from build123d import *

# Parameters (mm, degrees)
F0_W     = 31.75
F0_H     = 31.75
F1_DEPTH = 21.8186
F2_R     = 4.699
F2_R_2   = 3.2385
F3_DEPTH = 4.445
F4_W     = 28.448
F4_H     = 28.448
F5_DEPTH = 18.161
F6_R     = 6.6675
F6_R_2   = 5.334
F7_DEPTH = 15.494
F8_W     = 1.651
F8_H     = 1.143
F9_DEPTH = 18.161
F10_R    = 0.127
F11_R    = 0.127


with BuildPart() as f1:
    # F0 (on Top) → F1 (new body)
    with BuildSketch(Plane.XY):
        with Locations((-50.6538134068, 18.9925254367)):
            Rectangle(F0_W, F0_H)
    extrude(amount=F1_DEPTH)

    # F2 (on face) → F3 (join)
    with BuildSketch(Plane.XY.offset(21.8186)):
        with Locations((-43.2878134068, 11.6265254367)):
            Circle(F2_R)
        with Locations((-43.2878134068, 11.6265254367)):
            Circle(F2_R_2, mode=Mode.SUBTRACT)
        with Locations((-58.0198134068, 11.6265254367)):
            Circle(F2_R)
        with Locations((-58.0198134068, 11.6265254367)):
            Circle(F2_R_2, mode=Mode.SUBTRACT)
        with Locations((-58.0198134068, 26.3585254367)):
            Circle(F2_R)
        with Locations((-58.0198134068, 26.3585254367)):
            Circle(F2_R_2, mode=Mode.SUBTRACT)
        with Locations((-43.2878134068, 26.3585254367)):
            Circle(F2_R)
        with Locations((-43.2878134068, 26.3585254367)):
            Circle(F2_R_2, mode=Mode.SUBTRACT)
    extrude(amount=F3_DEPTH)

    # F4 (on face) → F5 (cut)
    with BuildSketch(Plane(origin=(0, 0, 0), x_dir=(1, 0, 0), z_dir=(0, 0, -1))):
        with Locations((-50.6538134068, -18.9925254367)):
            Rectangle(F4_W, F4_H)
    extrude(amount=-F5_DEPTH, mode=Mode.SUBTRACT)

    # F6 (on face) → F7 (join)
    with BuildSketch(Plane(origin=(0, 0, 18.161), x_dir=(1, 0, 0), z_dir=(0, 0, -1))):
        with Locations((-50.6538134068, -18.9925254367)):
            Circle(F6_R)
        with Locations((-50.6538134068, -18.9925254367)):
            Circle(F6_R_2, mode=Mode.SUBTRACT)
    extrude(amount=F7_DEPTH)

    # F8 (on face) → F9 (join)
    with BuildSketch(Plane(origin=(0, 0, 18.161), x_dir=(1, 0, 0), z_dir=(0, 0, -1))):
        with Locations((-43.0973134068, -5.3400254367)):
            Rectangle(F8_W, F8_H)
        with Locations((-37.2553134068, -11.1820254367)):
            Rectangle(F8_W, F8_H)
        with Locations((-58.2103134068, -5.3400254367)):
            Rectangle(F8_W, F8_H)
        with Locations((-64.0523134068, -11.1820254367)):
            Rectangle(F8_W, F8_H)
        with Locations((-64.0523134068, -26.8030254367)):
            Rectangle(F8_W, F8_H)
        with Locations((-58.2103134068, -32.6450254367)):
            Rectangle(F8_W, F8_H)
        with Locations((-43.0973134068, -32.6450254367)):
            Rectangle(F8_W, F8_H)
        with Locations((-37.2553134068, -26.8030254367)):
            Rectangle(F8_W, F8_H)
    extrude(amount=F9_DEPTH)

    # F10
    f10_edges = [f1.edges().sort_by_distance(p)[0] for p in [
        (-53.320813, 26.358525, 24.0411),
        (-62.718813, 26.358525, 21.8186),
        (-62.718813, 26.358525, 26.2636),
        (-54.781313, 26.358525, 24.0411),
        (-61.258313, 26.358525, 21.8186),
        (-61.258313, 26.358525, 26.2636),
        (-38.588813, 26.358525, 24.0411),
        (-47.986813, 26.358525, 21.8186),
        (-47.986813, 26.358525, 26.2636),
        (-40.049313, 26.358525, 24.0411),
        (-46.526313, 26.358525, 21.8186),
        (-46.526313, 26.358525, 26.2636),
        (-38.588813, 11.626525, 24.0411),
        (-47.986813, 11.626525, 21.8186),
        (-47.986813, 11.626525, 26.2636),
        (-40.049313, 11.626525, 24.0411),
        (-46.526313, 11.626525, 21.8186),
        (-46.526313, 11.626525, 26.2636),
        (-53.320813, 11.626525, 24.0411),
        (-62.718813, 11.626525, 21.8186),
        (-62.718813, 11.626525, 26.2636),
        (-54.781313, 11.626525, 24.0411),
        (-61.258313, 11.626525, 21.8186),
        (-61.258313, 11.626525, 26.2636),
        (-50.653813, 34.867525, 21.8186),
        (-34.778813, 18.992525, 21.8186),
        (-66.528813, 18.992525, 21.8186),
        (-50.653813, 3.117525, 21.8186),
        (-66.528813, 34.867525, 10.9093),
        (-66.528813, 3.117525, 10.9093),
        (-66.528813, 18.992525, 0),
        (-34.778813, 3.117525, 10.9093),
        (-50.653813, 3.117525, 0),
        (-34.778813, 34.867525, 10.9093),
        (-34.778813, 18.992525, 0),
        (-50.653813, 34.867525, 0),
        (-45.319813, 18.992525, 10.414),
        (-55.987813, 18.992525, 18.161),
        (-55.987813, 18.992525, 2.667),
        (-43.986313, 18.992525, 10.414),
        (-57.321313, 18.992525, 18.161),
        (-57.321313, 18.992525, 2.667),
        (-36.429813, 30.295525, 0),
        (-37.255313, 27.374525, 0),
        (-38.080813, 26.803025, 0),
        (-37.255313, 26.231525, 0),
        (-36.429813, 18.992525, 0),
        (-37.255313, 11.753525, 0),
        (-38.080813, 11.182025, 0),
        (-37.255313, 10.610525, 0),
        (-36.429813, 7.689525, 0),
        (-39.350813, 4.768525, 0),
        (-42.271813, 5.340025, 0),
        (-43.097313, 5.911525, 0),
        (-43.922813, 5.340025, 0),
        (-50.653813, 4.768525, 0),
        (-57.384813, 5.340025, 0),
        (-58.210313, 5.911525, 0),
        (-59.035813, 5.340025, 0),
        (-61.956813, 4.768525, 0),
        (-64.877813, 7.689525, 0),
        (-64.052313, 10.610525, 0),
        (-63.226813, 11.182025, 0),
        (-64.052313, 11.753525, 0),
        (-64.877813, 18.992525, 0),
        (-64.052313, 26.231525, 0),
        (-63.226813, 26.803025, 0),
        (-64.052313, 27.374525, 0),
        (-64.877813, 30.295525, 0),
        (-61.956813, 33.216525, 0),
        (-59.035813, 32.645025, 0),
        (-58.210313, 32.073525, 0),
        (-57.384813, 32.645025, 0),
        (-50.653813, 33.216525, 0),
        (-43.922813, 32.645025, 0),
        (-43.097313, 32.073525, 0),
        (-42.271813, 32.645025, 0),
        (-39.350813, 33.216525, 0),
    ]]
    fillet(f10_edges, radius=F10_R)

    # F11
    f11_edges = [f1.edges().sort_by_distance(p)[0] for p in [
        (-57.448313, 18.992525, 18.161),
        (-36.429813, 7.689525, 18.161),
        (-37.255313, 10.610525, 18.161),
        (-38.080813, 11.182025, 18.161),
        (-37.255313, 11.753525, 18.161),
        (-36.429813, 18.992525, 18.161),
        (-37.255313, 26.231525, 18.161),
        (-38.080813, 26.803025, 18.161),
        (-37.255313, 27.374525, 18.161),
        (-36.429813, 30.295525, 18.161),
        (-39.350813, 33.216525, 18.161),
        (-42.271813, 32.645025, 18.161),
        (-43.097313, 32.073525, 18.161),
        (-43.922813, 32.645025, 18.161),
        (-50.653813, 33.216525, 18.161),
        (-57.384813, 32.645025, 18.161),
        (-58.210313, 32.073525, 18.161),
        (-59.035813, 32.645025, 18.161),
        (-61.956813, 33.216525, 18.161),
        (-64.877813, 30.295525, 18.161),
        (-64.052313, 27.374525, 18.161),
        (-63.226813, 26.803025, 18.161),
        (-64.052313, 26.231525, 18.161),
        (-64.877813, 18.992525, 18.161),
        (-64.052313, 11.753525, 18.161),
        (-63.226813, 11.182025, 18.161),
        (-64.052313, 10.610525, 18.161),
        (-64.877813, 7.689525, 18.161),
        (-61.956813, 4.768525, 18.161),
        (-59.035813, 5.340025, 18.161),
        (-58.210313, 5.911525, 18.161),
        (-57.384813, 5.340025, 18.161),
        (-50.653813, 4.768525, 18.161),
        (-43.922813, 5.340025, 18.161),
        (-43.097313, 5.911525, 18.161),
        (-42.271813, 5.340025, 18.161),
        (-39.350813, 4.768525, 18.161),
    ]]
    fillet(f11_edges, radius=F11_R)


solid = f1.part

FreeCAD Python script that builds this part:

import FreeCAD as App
import Part
import Sketcher

V = App.Vector
Q = App.Units.Quantity


def edges_at(feature, points):
    """Names of the edges that pass closest to the given points."""
    edges = feature.Shape.Edges
    near = lambda p: min(range(len(edges)), key=lambda i: edges[i].distToShape(Part.Vertex(*p))[0])
    return sorted({f"Edge{near(p) + 1}" for p in points})


def add_polygon(sketch, points):
    """Adds a closed chain of lines whose ends are joined by coincident constraints."""
    first, n = sketch.GeometryCount, len(points)
    for a, b in zip(points, points[1:] + points[:1]):
        sketch.addGeometry(Part.LineSegment(App.Vector(*a, 0), App.Vector(*b, 0)), False)
    for i in range(n):
        sketch.addConstraint(Sketcher.Constraint("Coincident", first + i, 2, first + (i + 1) % n, 1))

doc = App.newDocument("Part")
params = doc.addObject("Spreadsheet::Sheet", "Params")
for row, (alias, value) in enumerate([
    ("sketch1_width", "1.25 in"),
    ("pad1_length", "0.859 in"),
    ("sketch2_diameter", "0.37 in"),
    ("sketch2_diameter2", "0.255 in"),
    ("pad2_length", "0.175 in"),
    ("sketch3_width", "1.12 in"),
    ("pocket1_length", "0.715 in"),
    ("sketch4_diameter", "0.42 in"),
    ("sketch4_diameter2", "0.525 in"),
    ("pad3_length", "0.61 in"),
    ("sketch5_width", "0.065 in"),
    ("sketch5_height", "0.045 in"),
    ("pad4_length", "0.715 in"),
    ("fillet_radius", "0.005 in"),
    ("fillet2_radius", "0.005 in"),
], start=1):
    params.set(f"A{row}", alias)
    params.set(f"B{row}", "=" + value)
    params.setAlias(f"B{row}", alias)

body = doc.addObject("PartDesign::Body", "Body")

# Sketch on XY plane
sketch1 = body.newObject("Sketcher::SketchObject", "Sketch")
sketch1.AttachmentSupport = (doc.getObject("XY_Plane"), [""])
sketch1.MapMode = "FlatFace"
add_polygon(sketch1, [(-66.528813, 34.867525), (-66.528813, 3.117525), (-34.778813, 3.117525), (-34.778813, 34.867525)])  # lines 0-3
sketch1.addConstraint(Sketcher.Constraint("Vertical", 0))
sketch1.addConstraint(Sketcher.Constraint("Horizontal", 1))
sketch1.addConstraint(Sketcher.Constraint("Vertical", 2))
sketch1.addConstraint(Sketcher.Constraint("Horizontal", 3))
sketch1.addConstraint(Sketcher.Constraint("Equal", 3, 0))
sketch1.addConstraint(Sketcher.Constraint("DistanceX", 1, 1, 1, 2, Q("1.25 in")))
sketch1.addConstraint(Sketcher.Constraint("DistanceX", 0, 2, -1, 1, 66.528813))
sketch1.addConstraint(Sketcher.Constraint("DistanceY", -1, 1, 0, 2, 3.117525))
sketch1.setExpression("Constraints[9]", "Params.sketch1_width")
pad1 = body.newObject("PartDesign::Pad", "Pad")
pad1.Profile = sketch1
pad1.setExpression("Length", "Params.pad1_length")

# Sketch on XY plane
sketch2 = body.newObject("Sketcher::SketchObject", "Sketch001")
sketch2.AttachmentSupport = (doc.getObject("XY_Plane"), [""])
sketch2.MapMode = "FlatFace"
sketch2.AttachmentOffset = App.Placement(V(0, 0, 0.859 * 25.4), App.Rotation())
sketch2.addGeometry(Part.Circle(V(-43.287813, 11.626525, 0), V(0, 0, 1), 4.699), False)
sketch2.addGeometry(Part.Circle(V(-43.287813, 11.626525, 0), V(0, 0, 1), 3.2385), False)
sketch2.addGeometry(Part.Circle(V(-58.019813, 11.626525, 0), V(0, 0, 1), 4.699), False)
sketch2.addGeometry(Part.Circle(V(-58.019813, 11.626525, 0), V(0, 0, 1), 3.2385), False)
sketch2.addGeometry(Part.Circle(V(-58.019813, 26.358525, 0), V(0, 0, 1), 4.699), False)
sketch2.addGeometry(Part.Circle(V(-58.019813, 26.358525, 0), V(0, 0, 1), 3.2385), False)
sketch2.addGeometry(Part.Circle(V(-43.287813, 26.358525, 0), V(0, 0, 1), 4.699), False)
sketch2.addGeometry(Part.Circle(V(-43.287813, 26.358525, 0), V(0, 0, 1), 3.2385), False)
sketch2.addConstraint(Sketcher.Constraint("Coincident", 1, 3, 0, 3))
sketch2.addConstraint(Sketcher.Constraint("Coincident", 3, 3, 2, 3))
sketch2.addConstraint(Sketcher.Constraint("Coincident", 5, 3, 4, 3))
sketch2.addConstraint(Sketcher.Constraint("Coincident", 7, 3, 6, 3))
sketch2.addConstraint(Sketcher.Constraint("Equal", 0, 2))
sketch2.addConstraint(Sketcher.Constraint("Equal", 1, 3))
sketch2.addConstraint(Sketcher.Constraint("Equal", 2, 4))
sketch2.addConstraint(Sketcher.Constraint("Equal", 3, 5))
sketch2.addConstraint(Sketcher.Constraint("Equal", 4, 6))
sketch2.addConstraint(Sketcher.Constraint("Equal", 5, 7))
sketch2.addConstraint(Sketcher.Constraint("Horizontal", 1, 3, 2, 3))
sketch2.addConstraint(Sketcher.Constraint("Horizontal", 5, 3, 6, 3))
sketch2.addConstraint(Sketcher.Constraint("Vertical", 3, 3, 4, 3))
sketch2.addConstraint(Sketcher.Constraint("Vertical", 1, 3, 6, 3))
sketch2.addConstraint(Sketcher.Constraint("Diameter", 0, Q("0.37 in")))
sketch2.addConstraint(Sketcher.Constraint("Diameter", 1, Q("0.255 in")))
sketch2.addConstraint(Sketcher.Constraint("DistanceX", 2, 3, 0, 3, Q("0.58 in")))
sketch2.addConstraint(Sketcher.Constraint("DistanceY", 2, 3, 4, 3, Q("0.58 in")))
sketch2.addConstraint(Sketcher.Constraint("DistanceX", 0, 3, -1, 1, 43.287813))
sketch2.addConstraint(Sketcher.Constraint("DistanceY", -1, 1, 0, 3, 11.626525))
sketch2.setExpression("Constraints[14]", "Params.sketch2_diameter")
sketch2.setExpression("Constraints[15]", "Params.sketch2_diameter2")
pad2 = body.newObject("PartDesign::Pad", "Pad001")
pad2.Profile = sketch2
pad2.setExpression("Length", "Params.pad2_length")

# Sketch on XY plane
sketch3 = body.newObject("Sketcher::SketchObject", "Sketch002")
sketch3.AttachmentSupport = (doc.getObject("XY_Plane"), [""])
sketch3.MapMode = "FlatFace"
add_polygon(sketch3, [(-64.877813, 4.768525), (-64.877813, 33.216525), (-36.429813, 33.216525), (-36.429813, 4.768525)])  # lines 0-3
sketch3.addConstraint(Sketcher.Constraint("Vertical", 0))
sketch3.addConstraint(Sketcher.Constraint("Horizontal", 1))
sketch3.addConstraint(Sketcher.Constraint("Vertical", 2))
sketch3.addConstraint(Sketcher.Constraint("Horizontal", 3))
sketch3.addConstraint(Sketcher.Constraint("Equal", 3, 0))
sketch3.addConstraint(Sketcher.Constraint("DistanceX", 1, 1, 1, 2, Q("1.12 in")))
sketch3.addConstraint(Sketcher.Constraint("DistanceX", 0, 2, -1, 1, 64.877813))
sketch3.addConstraint(Sketcher.Constraint("DistanceY", -1, 1, 0, 2, 33.216525))
sketch3.setExpression("Constraints[9]", "Params.sketch3_width")
pocket1 = body.newObject("PartDesign::Pocket", "Pocket")
pocket1.Profile = sketch3
pocket1.setExpression("Length", "Params.pocket1_length")
pocket1.Reversed = True

# Sketch on XY plane
sketch4 = body.newObject("Sketcher::SketchObject", "Sketch003")
sketch4.AttachmentSupport = (doc.getObject("XY_Plane"), [""])
sketch4.MapMode = "FlatFace"
sketch4.AttachmentOffset = App.Placement(V(0, 0, 0.715 * 25.4), App.Rotation())
sketch4.addGeometry(Part.Circle(V(-50.653813, 18.992525, 0), V(0, 0, 1), 6.6675), False)
sketch4.addGeometry(Part.Circle(V(-50.653813, 18.992525, 0), V(0, 0, 1), 5.334), False)
sketch4.addConstraint(Sketcher.Constraint("Coincident", 1, 3, 0, 3))
sketch4.addConstraint(Sketcher.Constraint("Diameter", 1, Q("0.42 in")))
sketch4.addConstraint(Sketcher.Constraint("Diameter", 0, Q("0.525 in")))
sketch4.addConstraint(Sketcher.Constraint("DistanceX", 0, 3, -1, 1, 50.653813))
sketch4.addConstraint(Sketcher.Constraint("DistanceY", -1, 1, 0, 3, 18.992525))
sketch4.setExpression("Constraints[1]", "Params.sketch4_diameter")
sketch4.setExpression("Constraints[2]", "Params.sketch4_diameter2")
pad3 = body.newObject("PartDesign::Pad", "Pad002")
pad3.Profile = sketch4
pad3.setExpression("Length", "Params.pad3_length")
pad3.Reversed = True

# Sketch on XY plane
sketch5 = body.newObject("Sketcher::SketchObject", "Sketch004")
sketch5.AttachmentSupport = (doc.getObject("XY_Plane"), [""])
sketch5.MapMode = "FlatFace"
sketch5.AttachmentOffset = App.Placement(V(0, 0, 0.715 * 25.4), App.Rotation())
add_polygon(sketch5, [(-43.922813, 4.768525), (-43.922813, 5.911525), (-42.271813, 5.911525), (-42.271813, 4.768525)])  # lines 0-3
add_polygon(sketch5, [(-38.080813, 10.610525), (-38.080813, 11.753525), (-36.429813, 11.753525), (-36.429813, 10.610525)])  # lines 4-7
add_polygon(sketch5, [(-59.035813, 4.768525), (-59.035813, 5.911525), (-57.384813, 5.911525), (-57.384813, 4.768525)])  # lines 8-11
add_polygon(sketch5, [(-64.877813, 10.610525), (-64.877813, 11.753525), (-63.226813, 11.753525), (-63.226813, 10.610525)])  # lines 12-15
add_polygon(sketch5, [(-64.877813, 26.231525), (-64.877813, 27.374525), (-63.226813, 27.374525), (-63.226813, 26.231525)])  # lines 16-19
add_polygon(sketch5, [(-59.035813, 32.073525), (-59.035813, 33.216525), (-57.384813, 33.216525), (-57.384813, 32.073525)])  # lines 20-23
add_polygon(sketch5, [(-43.922813, 32.073525), (-43.922813, 33.216525), (-42.271813, 33.216525), (-42.271813, 32.073525)])  # lines 24-27
add_polygon(sketch5, [(-38.080813, 26.231525), (-38.080813, 27.374525), (-36.429813, 27.374525), (-36.429813, 26.231525)])  # lines 28-31
sketch5.addConstraint(Sketcher.Constraint("Vertical", 0))
sketch5.addConstraint(Sketcher.Constraint("Horizontal", 1))
sketch5.addConstraint(Sketcher.Constraint("Vertical", 2))
sketch5.addConstraint(Sketcher.Constraint("Horizontal", 3))
sketch5.addConstraint(Sketcher.Constraint("Vertical", 4))
sketch5.addConstraint(Sketcher.Constraint("Horizontal", 5))
sketch5.addConstraint(Sketcher.Constraint("Vertical", 6))
sketch5.addConstraint(Sketcher.Constraint("Horizontal", 7))
sketch5.addConstraint(Sketcher.Constraint("Vertical", 8))
sketch5.addConstraint(Sketcher.Constraint("Horizontal", 9))
sketch5.addConstraint(Sketcher.Constraint("Vertical", 10))
sketch5.addConstraint(Sketcher.Constraint("Horizontal", 11))
sketch5.addConstraint(Sketcher.Constraint("Vertical", 12))
sketch5.addConstraint(Sketcher.Constraint("Horizontal", 13))
sketch5.addConstraint(Sketcher.Constraint("Vertical", 14))
sketch5.addConstraint(Sketcher.Constraint("Horizontal", 15))
sketch5.addConstraint(Sketcher.Constraint("Vertical", 16))
sketch5.addConstraint(Sketcher.Constraint("Horizontal", 17))
sketch5.addConstraint(Sketcher.Constraint("Vertical", 18))
sketch5.addConstraint(Sketcher.Constraint("Horizontal", 19))
sketch5.addConstraint(Sketcher.Constraint("Vertical", 20))
sketch5.addConstraint(Sketcher.Constraint("Horizontal", 21))
sketch5.addConstraint(Sketcher.Constraint("Vertical", 22))
sketch5.addConstraint(Sketcher.Constraint("Horizontal", 23))
sketch5.addConstraint(Sketcher.Constraint("Vertical", 24))
sketch5.addConstraint(Sketcher.Constraint("Horizontal", 25))
sketch5.addConstraint(Sketcher.Constraint("Vertical", 26))
sketch5.addConstraint(Sketcher.Constraint("Horizontal", 27))
sketch5.addConstraint(Sketcher.Constraint("Vertical", 28))
sketch5.addConstraint(Sketcher.Constraint("Horizontal", 29))
sketch5.addConstraint(Sketcher.Constraint("Vertical", 30))
sketch5.addConstraint(Sketcher.Constraint("Horizontal", 31))
sketch5.addConstraint(Sketcher.Constraint("Horizontal", 1, 2, 8, 2))
sketch5.addConstraint(Sketcher.Constraint("Horizontal", 3, 2, 10, 2))
sketch5.addConstraint(Sketcher.Constraint("Horizontal", 5, 2, 12, 2))
sketch5.addConstraint(Sketcher.Constraint("Horizontal", 7, 2, 14, 2))
sketch5.addConstraint(Sketcher.Constraint("Horizontal", 21, 2, 24, 2))
sketch5.addConstraint(Sketcher.Constraint("Horizontal", 23, 2, 26, 2))
sketch5.addConstraint(Sketcher.Constraint("Horizontal", 17, 2, 28, 2))
sketch5.addConstraint(Sketcher.Constraint("Horizontal", 19, 2, 30, 2))
sketch5.addConstraint(Sketcher.Constraint("Vertical", 15, 2, 16, 2))
sketch5.addConstraint(Sketcher.Constraint("Vertical", 14, 2, 17, 2))
sketch5.addConstraint(Sketcher.Constraint("Vertical", 11, 2, 20, 2))
sketch5.addConstraint(Sketcher.Constraint("Vertical", 10, 2, 21, 2))
sketch5.addConstraint(Sketcher.Constraint("Vertical", 3, 2, 24, 2))
sketch5.addConstraint(Sketcher.Constraint("Vertical", 2, 2, 25, 2))
sketch5.addConstraint(Sketcher.Constraint("Vertical", 7, 2, 28, 2))
sketch5.addConstraint(Sketcher.Constraint("Vertical", 6, 2, 29, 2))
sketch5.addConstraint(Sketcher.Constraint("Equal", 3, 5))
sketch5.addConstraint(Sketcher.Constraint("Equal", 7, 9))
sketch5.addConstraint(Sketcher.Constraint("Equal", 11, 13))
sketch5.addConstraint(Sketcher.Constraint("Equal", 2, 4))
sketch5.addConstraint(Sketcher.Constraint("Equal", 14, 16))
sketch5.addConstraint(Sketcher.Constraint("Equal", 18, 20))
sketch5.addConstraint(Sketcher.Constraint("DistanceX", 1, 1, 1, 2, Q("0.065 in")))
sketch5.addConstraint(Sketcher.Constraint("DistanceY", 0, 1, 0, 2, Q("0.045 in")))
sketch5.addConstraint(Sketcher.Constraint("DistanceY", 1, 2, 4, 2, Q("0.23 in")))
sketch5.addConstraint(Sketcher.Constraint("DistanceX", 0, 2, 4, 2, Q("0.23 in")))
sketch5.addConstraint(Sketcher.Constraint("DistanceX", 8, 2, 1, 2, Q("0.66 in")))
sketch5.addConstraint(Sketcher.Constraint("DistanceX", 12, 2, 8, 2, Q("0.23 in")))
sketch5.addConstraint(Sketcher.Constraint("DistanceY", 15, 2, 16, 2, Q("0.66 in")))
sketch5.addConstraint(Sketcher.Constraint("DistanceY", 17, 2, 20, 2, Q("0.23 in")))
sketch5.addConstraint(Sketcher.Constraint("DistanceX", 0, 2, -1, 1, 43.922813))
sketch5.addConstraint(Sketcher.Constraint("DistanceY", -1, 1, 0, 2, 5.911525))
sketch5.setExpression("Constraints[86]", "Params.sketch5_width")
sketch5.setExpression("Constraints[87]", "Params.sketch5_height")
pad4 = body.newObject("PartDesign::Pad", "Pad003")
pad4.Profile = sketch5
pad4.setExpression("Length", "Params.pad4_length")
pad4.Reversed = True
doc.recompute()

fillet = body.newObject("PartDesign::Fillet", "Fillet")
fillet.Base = (pad4, edges_at(pad4, [
    (-53.321, 26.359, 24.041),
    (-62.719, 26.359, 21.819),
    (-62.719, 26.359, 26.264),
    (-54.781, 26.359, 24.041),
    (-61.258, 26.359, 21.819),
    (-61.258, 26.359, 26.264),
    (-38.589, 26.359, 24.041),
    (-47.987, 26.359, 21.819),
    (-47.987, 26.359, 26.264),
    (-40.049, 26.359, 24.041),
    (-46.526, 26.359, 21.819),
    (-46.526, 26.359, 26.264),
    (-38.589, 11.627, 24.041),
    (-47.987, 11.627, 21.819),
    (-47.987, 11.627, 26.264),
    (-40.049, 11.627, 24.041),
    (-46.526, 11.627, 21.819),
    (-46.526, 11.627, 26.264),
    (-53.321, 11.627, 24.041),
    (-62.719, 11.627, 21.819),
    (-62.719, 11.627, 26.264),
    (-54.781, 11.627, 24.041),
    (-61.258, 11.627, 21.819),
    (-61.258, 11.627, 26.264),
    (-50.654, 34.868, 21.819),
    (-34.779, 18.993, 21.819),
    (-66.529, 18.993, 21.819),
    (-50.654, 3.118, 21.819),
    (-66.529, 34.868, 10.909),
    (-66.529, 3.118, 10.909),
    (-66.529, 18.993, 0),
    (-34.779, 3.118, 10.909),
    (-50.654, 3.118, 0),
    (-34.779, 34.868, 10.909),
    (-34.779, 18.993, 0),
    (-50.654, 34.868, 0),
    (-45.32, 18.993, 10.414),
    (-55.988, 18.993, 18.161),
    (-55.988, 18.993, 2.667),
    (-43.986, 18.993, 10.414),
    (-57.321, 18.993, 18.161),
    (-57.321, 18.993, 2.667),
    (-36.43, 30.296, 0),
    (-37.255, 27.375, 0),
    (-38.081, 26.803, 0),
    (-37.255, 26.232, 0),
    (-36.43, 18.993, 0),
    (-37.255, 11.754, 0),
    (-38.081, 11.182, 0),
    (-37.255, 10.611, 0),
    (-36.43, 7.69, 0),
    (-39.351, 4.769, 0),
    (-42.272, 5.34, 0),
    (-43.097, 5.912, 0),
    (-43.923, 5.34, 0),
    (-50.654, 4.769, 0),
    (-57.385, 5.34, 0),
    (-58.21, 5.912, 0),
    (-59.036, 5.34, 0),
    (-61.957, 4.769, 0),
    (-64.878, 7.69, 0),
    (-64.052, 10.611, 0),
    (-63.227, 11.182, 0),
    (-64.052, 11.754, 0),
    (-64.878, 18.993, 0),
    (-64.052, 26.232, 0),
    (-63.227, 26.803, 0),
    (-64.052, 27.375, 0),
    (-64.878, 30.296, 0),
    (-61.957, 33.217, 0),
    (-59.036, 32.645, 0),
    (-58.21, 32.074, 0),
    (-57.385, 32.645, 0),
    (-50.654, 33.217, 0),
    (-43.923, 32.645, 0),
    (-43.097, 32.074, 0),
    (-42.272, 32.645, 0),
    (-39.351, 33.217, 0),
]))
fillet.setExpression("Radius", "Params.fillet_radius")
doc.recompute()

fillet2 = body.newObject("PartDesign::Fillet", "Fillet001")
fillet2.Base = (fillet, edges_at(fillet, [
    (-57.448, 18.993, 18.161),
    (-36.43, 7.69, 18.161),
    (-37.255, 10.611, 18.161),
    (-38.081, 11.182, 18.161),
    (-37.255, 11.754, 18.161),
    (-36.43, 18.993, 18.161),
    (-37.255, 26.232, 18.161),
    (-38.081, 26.803, 18.161),
    (-37.255, 27.375, 18.161),
    (-36.43, 30.296, 18.161),
    (-39.351, 33.217, 18.161),
    (-42.272, 32.645, 18.161),
    (-43.097, 32.074, 18.161),
    (-43.923, 32.645, 18.161),
    (-50.654, 33.217, 18.161),
    (-57.385, 32.645, 18.161),
    (-58.21, 32.074, 18.161),
    (-59.036, 32.645, 18.161),
    (-61.957, 33.217, 18.161),
    (-64.878, 30.296, 18.161),
    (-64.052, 27.375, 18.161),
    (-63.227, 26.803, 18.161),
    (-64.052, 26.232, 18.161),
    (-64.878, 18.993, 18.161),
    (-64.052, 11.754, 18.161),
    (-63.227, 11.182, 18.161),
    (-64.052, 10.611, 18.161),
    (-64.878, 7.69, 18.161),
    (-61.957, 4.769, 18.161),
    (-59.036, 5.34, 18.161),
    (-58.21, 5.912, 18.161),
    (-57.385, 5.34, 18.161),
    (-50.654, 4.769, 18.161),
    (-43.923, 5.34, 18.161),
    (-43.097, 5.912, 18.161),
    (-42.272, 5.34, 18.161),
    (-39.351, 4.769, 18.161),
]))
fillet2.setExpression("Radius", "Params.fillet2_radius")

doc.recompute()
